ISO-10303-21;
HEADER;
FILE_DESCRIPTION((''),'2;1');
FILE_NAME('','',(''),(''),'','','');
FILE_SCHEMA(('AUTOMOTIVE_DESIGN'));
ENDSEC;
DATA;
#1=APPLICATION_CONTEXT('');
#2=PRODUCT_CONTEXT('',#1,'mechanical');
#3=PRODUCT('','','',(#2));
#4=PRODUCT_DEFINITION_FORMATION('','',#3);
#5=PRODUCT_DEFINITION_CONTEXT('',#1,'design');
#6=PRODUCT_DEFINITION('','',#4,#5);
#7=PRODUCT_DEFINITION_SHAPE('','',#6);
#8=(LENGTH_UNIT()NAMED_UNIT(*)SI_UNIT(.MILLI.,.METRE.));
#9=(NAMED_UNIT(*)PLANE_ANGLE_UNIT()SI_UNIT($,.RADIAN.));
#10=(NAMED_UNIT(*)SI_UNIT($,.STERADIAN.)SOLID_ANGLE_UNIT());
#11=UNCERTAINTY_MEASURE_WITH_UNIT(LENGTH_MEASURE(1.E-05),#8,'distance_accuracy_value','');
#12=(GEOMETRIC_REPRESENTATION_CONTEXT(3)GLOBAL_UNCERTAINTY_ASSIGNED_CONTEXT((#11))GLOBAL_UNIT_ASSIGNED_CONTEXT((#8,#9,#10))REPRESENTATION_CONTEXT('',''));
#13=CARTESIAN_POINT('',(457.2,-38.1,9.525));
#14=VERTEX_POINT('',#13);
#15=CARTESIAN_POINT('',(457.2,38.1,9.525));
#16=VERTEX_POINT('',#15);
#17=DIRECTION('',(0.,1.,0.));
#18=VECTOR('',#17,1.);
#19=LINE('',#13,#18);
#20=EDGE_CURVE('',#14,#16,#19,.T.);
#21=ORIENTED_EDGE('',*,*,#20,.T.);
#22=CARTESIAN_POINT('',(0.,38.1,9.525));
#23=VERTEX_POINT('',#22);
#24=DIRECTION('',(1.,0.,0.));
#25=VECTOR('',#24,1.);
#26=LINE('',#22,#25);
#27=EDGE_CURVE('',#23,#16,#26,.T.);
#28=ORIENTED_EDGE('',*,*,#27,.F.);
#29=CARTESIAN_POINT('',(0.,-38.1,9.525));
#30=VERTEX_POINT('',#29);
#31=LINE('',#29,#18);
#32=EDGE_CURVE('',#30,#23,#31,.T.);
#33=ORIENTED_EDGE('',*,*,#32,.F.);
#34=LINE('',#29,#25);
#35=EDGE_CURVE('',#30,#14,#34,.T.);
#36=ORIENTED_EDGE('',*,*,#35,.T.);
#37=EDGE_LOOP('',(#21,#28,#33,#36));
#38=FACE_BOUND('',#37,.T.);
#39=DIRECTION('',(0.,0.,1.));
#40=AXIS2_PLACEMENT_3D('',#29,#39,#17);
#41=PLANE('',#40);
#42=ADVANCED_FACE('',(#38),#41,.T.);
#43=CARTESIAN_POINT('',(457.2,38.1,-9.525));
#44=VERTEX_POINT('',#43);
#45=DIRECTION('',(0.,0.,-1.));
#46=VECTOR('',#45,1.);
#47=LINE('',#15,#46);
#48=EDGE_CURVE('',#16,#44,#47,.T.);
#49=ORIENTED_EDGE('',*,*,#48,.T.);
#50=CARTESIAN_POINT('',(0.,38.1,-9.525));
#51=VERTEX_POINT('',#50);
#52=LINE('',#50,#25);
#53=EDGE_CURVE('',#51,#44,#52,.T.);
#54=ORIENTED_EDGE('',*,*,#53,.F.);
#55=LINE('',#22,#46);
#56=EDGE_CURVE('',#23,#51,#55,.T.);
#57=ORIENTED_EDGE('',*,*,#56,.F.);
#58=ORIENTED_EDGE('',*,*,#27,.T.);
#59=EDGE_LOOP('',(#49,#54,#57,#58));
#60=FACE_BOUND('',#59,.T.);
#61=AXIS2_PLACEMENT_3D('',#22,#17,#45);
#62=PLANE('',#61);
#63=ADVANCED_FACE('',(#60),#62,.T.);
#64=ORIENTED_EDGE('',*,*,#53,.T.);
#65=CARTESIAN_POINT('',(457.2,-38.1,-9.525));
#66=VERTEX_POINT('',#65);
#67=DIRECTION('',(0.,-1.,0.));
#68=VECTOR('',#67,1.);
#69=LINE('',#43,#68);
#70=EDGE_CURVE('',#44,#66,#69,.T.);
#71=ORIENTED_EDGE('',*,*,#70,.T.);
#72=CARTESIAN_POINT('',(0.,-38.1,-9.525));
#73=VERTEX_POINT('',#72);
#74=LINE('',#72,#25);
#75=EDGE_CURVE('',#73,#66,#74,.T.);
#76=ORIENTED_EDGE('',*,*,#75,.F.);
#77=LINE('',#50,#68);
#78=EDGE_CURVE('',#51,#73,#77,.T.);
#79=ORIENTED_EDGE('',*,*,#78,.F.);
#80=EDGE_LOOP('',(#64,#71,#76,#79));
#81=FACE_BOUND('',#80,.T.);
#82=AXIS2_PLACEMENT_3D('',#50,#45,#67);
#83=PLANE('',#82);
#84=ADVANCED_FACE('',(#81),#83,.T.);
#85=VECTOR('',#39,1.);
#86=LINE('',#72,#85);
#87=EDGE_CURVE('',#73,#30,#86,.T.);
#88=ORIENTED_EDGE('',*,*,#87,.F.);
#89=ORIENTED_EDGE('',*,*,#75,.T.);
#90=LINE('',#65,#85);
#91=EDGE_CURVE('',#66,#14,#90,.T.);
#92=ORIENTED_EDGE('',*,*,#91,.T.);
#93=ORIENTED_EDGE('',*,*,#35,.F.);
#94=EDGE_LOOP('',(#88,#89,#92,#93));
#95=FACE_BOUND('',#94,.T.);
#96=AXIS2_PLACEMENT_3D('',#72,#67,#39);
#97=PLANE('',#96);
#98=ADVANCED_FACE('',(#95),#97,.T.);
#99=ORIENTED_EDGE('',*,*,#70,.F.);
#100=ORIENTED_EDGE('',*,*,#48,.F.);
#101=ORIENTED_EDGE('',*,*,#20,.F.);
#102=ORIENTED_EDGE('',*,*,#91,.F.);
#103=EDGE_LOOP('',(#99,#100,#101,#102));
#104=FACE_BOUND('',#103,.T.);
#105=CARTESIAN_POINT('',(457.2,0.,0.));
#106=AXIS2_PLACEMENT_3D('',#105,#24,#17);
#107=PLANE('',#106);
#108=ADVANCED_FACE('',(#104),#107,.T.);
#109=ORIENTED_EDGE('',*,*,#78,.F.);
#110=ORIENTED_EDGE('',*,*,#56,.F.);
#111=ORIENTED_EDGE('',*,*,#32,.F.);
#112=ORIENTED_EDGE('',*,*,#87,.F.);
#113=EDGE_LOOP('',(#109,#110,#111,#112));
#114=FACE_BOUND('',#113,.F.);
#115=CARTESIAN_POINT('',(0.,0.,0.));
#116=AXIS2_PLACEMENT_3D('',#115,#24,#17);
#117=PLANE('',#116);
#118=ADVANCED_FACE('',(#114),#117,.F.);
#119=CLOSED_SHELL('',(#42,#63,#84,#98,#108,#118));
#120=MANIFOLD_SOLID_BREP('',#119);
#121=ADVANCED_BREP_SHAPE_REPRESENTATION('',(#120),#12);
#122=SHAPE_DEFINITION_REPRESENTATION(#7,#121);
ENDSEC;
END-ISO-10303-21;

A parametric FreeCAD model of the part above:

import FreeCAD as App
import Part
import Sketcher
from FreeCAD import Vector
Q = App.Units.Quantity


def add_polygon(sketch, points):
    """Adds a closed chain of lines whose ends are joined by coincident constraints."""
    first, n = sketch.GeometryCount, len(points)
    for a, b in zip(points, points[1:] + points[:1]):
        sketch.addGeometry(Part.LineSegment(App.Vector(*a, 0), App.Vector(*b, 0)), False)
    for i in range(n):
        sketch.addConstraint(Sketcher.Constraint("Coincident", first + i, 2, first + (i + 1) % n, 1))

doc = App.newDocument("Part")
params = doc.addObject("Spreadsheet::Sheet", "Params")
for row, (alias, value) in enumerate([
    ("sketch1_width", "3 in"),
    ("sketch1_height", "0.75 in"),
    ("pad1_length", "18 in"),
], start=1):
    params.set(f"A{row}", alias)
    params.set(f"B{row}", "=" + value)
    params.setAlias(f"B{row}", alias)

body = doc.addObject("PartDesign::Body", "Body")

# Sketch on YZ plane
sketch1 = body.newObject("Sketcher::SketchObject", "Sketch")
sketch1.AttachmentSupport = (doc.getObject("YZ_Plane"), [""])
sketch1.MapMode = "FlatFace"
add_polygon(sketch1, [(38, 10), (-38, 10), (-38, -10), (38, -10)])  # lines 0-3
sketch1.addConstraint(Sketcher.Constraint("Horizontal", 0))
sketch1.addConstraint(Sketcher.Constraint("Vertical", 1))
sketch1.addConstraint(Sketcher.Constraint("Horizontal", 2))
sketch1.addConstraint(Sketcher.Constraint("Vertical", 3))
sketch1.addConstraint(Sketcher.Constraint("Symmetric", 0, 2, 2, 2, -1, 1))
sketch1.addConstraint(Sketcher.Constraint("DistanceX", 0, 2, 0, 1, Q("3 in")))
sketch1.addConstraint(Sketcher.Constraint("DistanceY", 1, 2, 1, 1, Q("0.75 in")))
sketch1.setExpression("Constraints[9]", "Params.sketch1_width")
sketch1.setExpression("Constraints[10]", "Params.sketch1_height")
pad1 = body.newObject("PartDesign::Pad", "Pad")
pad1.Profile = sketch1
pad1.setExpression("Length", "Params.pad1_length")

doc.recompute()
